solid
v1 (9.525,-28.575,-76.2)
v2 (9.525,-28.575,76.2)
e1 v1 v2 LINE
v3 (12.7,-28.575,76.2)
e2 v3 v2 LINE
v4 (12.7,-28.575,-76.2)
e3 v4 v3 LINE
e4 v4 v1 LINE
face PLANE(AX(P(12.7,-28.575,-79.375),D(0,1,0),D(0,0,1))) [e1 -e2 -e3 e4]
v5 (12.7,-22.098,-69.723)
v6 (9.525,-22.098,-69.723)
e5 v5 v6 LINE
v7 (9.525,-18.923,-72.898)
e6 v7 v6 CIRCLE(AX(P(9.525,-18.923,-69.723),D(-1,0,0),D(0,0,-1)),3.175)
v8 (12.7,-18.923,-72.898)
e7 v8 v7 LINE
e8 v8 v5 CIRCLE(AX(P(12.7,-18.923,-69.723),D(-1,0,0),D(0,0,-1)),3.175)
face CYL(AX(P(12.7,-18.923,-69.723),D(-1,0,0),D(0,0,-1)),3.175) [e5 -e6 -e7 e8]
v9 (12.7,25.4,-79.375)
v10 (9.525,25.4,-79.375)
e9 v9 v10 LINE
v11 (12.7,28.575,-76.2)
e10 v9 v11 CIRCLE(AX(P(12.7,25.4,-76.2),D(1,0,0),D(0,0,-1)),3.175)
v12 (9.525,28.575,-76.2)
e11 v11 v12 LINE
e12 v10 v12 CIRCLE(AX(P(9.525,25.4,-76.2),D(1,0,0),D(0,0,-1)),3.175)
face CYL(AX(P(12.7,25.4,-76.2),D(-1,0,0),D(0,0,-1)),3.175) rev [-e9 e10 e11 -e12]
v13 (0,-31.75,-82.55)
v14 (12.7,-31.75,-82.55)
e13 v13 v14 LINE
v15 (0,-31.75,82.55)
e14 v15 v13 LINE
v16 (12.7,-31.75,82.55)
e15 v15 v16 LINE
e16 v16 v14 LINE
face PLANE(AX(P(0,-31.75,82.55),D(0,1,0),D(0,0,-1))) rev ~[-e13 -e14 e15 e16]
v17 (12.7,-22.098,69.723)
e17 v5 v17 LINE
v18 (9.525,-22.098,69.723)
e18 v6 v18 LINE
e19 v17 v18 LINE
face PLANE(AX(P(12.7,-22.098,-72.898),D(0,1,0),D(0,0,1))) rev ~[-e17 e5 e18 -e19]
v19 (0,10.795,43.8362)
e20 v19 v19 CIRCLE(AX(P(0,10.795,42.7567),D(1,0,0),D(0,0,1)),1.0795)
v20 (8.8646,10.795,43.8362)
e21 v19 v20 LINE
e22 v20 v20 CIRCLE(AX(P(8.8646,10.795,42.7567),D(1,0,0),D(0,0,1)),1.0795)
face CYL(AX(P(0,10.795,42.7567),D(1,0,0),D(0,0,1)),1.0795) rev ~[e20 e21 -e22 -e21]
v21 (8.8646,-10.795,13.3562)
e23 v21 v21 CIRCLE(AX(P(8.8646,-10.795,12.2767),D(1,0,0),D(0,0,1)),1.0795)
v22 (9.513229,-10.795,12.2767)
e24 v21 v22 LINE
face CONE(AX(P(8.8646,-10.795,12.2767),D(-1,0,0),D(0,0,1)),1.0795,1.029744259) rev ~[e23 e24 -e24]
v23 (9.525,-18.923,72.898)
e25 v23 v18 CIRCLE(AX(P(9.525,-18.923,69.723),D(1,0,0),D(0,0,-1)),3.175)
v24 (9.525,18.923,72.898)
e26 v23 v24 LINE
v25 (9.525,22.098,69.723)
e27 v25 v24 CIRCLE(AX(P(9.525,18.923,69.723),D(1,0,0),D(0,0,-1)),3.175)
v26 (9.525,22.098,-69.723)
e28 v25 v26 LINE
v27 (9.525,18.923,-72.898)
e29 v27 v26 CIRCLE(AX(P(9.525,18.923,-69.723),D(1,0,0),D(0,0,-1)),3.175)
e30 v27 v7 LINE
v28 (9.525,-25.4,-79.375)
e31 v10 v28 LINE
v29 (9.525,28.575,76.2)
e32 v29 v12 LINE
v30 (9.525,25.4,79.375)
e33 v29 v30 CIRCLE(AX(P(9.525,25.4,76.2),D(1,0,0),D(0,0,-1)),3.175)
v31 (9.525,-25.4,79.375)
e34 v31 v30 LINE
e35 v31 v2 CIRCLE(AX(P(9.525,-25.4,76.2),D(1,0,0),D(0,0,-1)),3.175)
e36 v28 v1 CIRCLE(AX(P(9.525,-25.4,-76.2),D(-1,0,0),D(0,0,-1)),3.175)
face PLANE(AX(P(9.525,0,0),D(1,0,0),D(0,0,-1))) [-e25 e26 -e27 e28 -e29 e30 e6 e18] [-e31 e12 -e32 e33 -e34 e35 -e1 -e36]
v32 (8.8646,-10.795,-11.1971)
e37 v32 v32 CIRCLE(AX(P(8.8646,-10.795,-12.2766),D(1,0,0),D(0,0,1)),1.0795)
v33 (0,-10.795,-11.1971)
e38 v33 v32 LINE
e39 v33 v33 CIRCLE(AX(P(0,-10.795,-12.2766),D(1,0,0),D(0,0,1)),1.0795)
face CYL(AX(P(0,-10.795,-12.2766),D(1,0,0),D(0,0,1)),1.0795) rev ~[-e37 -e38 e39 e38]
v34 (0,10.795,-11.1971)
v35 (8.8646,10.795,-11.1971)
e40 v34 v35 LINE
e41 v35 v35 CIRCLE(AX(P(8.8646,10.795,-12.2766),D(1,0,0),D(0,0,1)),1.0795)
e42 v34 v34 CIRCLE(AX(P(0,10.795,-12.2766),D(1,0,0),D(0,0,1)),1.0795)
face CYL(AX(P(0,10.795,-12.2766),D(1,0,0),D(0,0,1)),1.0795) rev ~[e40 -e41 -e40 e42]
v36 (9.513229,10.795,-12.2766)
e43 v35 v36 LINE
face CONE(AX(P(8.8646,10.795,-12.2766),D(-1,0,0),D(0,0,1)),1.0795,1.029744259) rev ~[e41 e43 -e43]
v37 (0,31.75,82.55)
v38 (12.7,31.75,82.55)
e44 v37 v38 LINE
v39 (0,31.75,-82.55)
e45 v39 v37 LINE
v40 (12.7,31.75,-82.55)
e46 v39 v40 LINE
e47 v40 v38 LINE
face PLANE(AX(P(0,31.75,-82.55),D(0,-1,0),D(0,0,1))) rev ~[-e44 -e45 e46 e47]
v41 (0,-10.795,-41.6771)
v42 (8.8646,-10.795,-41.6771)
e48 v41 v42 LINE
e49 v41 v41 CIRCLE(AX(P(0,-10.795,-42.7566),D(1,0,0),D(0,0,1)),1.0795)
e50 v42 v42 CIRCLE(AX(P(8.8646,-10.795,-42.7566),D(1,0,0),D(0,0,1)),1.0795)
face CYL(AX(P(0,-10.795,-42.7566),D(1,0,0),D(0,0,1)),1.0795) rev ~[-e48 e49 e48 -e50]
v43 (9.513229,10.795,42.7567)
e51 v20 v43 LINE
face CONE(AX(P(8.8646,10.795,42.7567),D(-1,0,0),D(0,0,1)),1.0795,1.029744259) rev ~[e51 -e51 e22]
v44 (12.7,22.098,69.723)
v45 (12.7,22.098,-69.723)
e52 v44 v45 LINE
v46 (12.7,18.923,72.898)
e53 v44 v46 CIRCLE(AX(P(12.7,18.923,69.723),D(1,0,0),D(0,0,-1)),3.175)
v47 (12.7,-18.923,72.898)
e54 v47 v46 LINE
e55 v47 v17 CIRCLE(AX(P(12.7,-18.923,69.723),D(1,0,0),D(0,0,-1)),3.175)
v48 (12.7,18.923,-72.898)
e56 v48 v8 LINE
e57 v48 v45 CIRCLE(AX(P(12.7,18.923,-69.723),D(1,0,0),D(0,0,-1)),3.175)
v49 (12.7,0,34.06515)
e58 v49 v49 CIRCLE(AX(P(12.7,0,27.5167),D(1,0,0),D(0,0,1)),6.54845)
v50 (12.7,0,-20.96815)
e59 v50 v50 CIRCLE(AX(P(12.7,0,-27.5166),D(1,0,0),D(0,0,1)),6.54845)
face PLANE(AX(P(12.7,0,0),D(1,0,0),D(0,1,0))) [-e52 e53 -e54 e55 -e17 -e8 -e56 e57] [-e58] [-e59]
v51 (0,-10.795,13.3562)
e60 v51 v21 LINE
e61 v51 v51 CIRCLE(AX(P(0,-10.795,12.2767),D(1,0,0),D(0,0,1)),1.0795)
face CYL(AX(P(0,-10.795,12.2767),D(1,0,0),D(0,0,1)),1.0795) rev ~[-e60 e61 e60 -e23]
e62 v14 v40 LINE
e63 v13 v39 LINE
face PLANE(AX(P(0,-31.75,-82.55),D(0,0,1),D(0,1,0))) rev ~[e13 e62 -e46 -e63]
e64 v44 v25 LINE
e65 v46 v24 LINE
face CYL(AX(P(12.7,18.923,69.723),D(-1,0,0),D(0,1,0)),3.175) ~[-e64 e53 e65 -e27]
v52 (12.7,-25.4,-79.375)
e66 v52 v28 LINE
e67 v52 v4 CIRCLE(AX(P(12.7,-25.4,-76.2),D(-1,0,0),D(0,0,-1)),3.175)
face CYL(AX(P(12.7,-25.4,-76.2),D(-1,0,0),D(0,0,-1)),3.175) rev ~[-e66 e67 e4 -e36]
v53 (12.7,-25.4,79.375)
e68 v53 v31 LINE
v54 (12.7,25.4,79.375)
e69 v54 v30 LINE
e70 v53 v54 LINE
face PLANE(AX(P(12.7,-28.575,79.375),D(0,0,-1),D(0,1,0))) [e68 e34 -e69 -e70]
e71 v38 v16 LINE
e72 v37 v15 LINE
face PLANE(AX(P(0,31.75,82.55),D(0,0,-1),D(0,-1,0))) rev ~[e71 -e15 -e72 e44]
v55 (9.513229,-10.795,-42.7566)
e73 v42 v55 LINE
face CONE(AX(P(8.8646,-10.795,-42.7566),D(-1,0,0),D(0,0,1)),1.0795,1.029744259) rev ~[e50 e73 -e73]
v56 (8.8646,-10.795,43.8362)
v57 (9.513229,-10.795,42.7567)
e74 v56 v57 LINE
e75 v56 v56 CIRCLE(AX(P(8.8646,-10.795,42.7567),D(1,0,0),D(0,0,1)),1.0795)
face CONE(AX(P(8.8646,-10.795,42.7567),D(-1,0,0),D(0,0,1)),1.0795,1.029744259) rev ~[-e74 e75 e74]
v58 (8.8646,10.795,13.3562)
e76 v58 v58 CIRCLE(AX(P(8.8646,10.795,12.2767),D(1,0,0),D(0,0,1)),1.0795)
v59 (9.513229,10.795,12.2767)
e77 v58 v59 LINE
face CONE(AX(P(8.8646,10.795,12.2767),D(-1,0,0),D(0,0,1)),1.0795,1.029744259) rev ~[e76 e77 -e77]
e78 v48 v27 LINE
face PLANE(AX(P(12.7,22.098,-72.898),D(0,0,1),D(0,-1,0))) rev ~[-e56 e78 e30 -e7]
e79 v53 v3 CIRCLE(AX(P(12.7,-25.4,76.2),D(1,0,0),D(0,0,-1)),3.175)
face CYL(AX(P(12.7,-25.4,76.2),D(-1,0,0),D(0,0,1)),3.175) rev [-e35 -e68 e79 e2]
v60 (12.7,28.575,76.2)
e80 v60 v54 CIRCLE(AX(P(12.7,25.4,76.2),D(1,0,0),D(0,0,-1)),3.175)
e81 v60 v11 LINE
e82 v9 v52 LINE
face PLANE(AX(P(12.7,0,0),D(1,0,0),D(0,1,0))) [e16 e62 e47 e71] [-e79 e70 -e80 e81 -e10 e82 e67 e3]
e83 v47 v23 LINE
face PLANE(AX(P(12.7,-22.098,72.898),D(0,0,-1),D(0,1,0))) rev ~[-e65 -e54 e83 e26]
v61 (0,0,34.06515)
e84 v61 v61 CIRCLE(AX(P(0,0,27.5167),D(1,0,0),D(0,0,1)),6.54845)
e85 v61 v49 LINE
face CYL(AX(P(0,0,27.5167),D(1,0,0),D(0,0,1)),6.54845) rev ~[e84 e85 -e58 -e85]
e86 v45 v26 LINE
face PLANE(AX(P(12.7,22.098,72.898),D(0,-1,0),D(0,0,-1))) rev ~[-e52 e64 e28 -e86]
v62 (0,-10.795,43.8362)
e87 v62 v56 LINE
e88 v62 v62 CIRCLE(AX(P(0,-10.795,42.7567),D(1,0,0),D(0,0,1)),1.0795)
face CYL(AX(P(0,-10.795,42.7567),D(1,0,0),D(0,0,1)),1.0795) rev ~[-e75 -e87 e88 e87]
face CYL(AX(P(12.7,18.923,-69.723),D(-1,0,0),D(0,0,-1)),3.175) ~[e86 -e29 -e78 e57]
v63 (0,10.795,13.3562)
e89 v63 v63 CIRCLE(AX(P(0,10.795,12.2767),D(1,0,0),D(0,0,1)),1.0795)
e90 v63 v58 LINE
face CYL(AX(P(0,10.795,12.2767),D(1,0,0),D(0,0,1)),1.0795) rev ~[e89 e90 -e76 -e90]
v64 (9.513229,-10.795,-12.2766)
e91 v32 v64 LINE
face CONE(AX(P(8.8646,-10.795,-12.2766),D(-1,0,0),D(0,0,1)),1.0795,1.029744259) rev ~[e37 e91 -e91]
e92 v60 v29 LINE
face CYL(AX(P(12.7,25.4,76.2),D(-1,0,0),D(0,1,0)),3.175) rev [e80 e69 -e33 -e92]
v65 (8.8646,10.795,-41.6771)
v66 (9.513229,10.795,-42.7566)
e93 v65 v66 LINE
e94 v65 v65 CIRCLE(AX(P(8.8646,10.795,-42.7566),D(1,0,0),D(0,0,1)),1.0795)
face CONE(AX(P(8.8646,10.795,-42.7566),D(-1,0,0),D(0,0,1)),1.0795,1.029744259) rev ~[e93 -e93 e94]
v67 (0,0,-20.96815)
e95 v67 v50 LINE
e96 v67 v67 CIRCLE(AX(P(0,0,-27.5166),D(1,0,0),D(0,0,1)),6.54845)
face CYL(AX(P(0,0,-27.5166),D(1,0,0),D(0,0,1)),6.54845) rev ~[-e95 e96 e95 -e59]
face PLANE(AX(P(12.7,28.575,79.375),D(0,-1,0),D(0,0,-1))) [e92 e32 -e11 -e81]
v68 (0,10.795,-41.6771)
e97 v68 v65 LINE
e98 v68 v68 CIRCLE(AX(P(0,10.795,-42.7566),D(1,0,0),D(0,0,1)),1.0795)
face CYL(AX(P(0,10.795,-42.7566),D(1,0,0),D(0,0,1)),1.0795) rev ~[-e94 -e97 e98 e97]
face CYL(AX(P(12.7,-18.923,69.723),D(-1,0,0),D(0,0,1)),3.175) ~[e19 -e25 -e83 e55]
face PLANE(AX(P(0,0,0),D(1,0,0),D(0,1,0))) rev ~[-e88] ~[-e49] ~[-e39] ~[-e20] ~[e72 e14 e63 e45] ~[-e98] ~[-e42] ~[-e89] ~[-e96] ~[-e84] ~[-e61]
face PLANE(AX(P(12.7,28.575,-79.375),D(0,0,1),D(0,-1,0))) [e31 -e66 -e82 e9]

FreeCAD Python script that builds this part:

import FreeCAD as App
import Part
import Sketcher
Q = App.Units.Quantity


def edges_at(feature, points):
    """Names of the edges that pass closest to the given points."""
    edges = feature.Shape.Edges
    near = lambda p: min(range(len(edges)), key=lambda i: edges[i].distToShape(Part.Vertex(*p))[0])
    return sorted({f"Edge{near(p) + 1}" for p in points})


def add_polygon(sketch, points):
    """Adds a closed chain of lines whose ends are joined by coincident constraints."""
    first, n = sketch.GeometryCount, len(points)
    for a, b in zip(points, points[1:] + points[:1]):
        sketch.addGeometry(Part.LineSegment(App.Vector(*a, 0), App.Vector(*b, 0)), False)
    for i in range(n):
        sketch.addConstraint(Sketcher.Constraint("Coincident", first + i, 2, first + (i + 1) % n, 1))

doc = App.newDocument("Part")
body = doc.addObject("PartDesign::Body", "Body")

# Sketch on YZ plane
sketch1 = body.newObject("Sketcher::SketchObject", "Sketch")
sketch1.AttachmentSupport = (doc.getObject("YZ_Plane"), [""])
sketch1.MapMode = "FlatFace"
add_polygon(sketch1, [(31.75, -82.55), (31.75, 82.55), (-31.75, 82.55), (-31.75, -82.55)])  # lines 0-3
sketch1.addConstraint(Sketcher.Constraint("Vertical", 0))
sketch1.addConstraint(Sketcher.Constraint("Horizontal", 1))
sketch1.addConstraint(Sketcher.Constraint("Vertical", 2))
sketch1.addConstraint(Sketcher.Constraint("Horizontal", 3))
sketch1.addConstraint(Sketcher.Constraint("Symmetric", 0, 2, 2, 2, -1, 1))
sketch1.addConstraint(Sketcher.Constraint("DistanceX", 1, 2, 1, 1, Q("2.5 in")))
sketch1.addConstraint(Sketcher.Constraint("DistanceY", 0, 1, 0, 2, Q("6.5 in")))
pad1 = body.newObject("PartDesign::Pad", "Pad")
pad1.Profile = sketch1
pad1.Length = Q("0.5 in")

# Sketch on YZ plane
sketch2 = body.newObject("Sketcher::SketchObject", "Sketch001")
sketch2.AttachmentSupport = (doc.getObject("YZ_Plane"), [""])
sketch2.MapMode = "FlatFace"
sketch2.AttachmentOffset = App.Placement(App.Vector(0, 0, 0.5 * 25.4), App.Rotation())
add_polygon(sketch2, [(-28.575, 79.375), (-28.575, -79.375), (28.575, -79.375), (28.575, 79.375)])  # lines 0-3
add_polygon(sketch2, [(22.098, -72.898), (-22.098, -72.898), (-22.098, 72.898), (22.098, 72.898)])  # lines 4-7
sketch2.addConstraint(Sketcher.Constraint("Vertical", 0))
sketch2.addConstraint(Sketcher.Constraint("Horizontal", 1))
sketch2.addConstraint(Sketcher.Constraint("Vertical", 2))
sketch2.addConstraint(Sketcher.Constraint("Horizontal", 3))
sketch2.addConstraint(Sketcher.Constraint("Horizontal", 4))
sketch2.addConstraint(Sketcher.Constraint("Vertical", 5))
sketch2.addConstraint(Sketcher.Constraint("Horizontal", 6))
sketch2.addConstraint(Sketcher.Constraint("Vertical", 7))
sketch2.addConstraint(Sketcher.Constraint("Symmetric", 0, 2, 2, 2, -1, 1))
sketch2.addConstraint(Sketcher.Constraint("Symmetric", 4, 2, 6, 2, -1, 1))
sketch2.addConstraint(Sketcher.Constraint("DistanceX", 4, 2, 4, 1, Q("1.74 in")))
sketch2.addConstraint(Sketcher.Constraint("DistanceY", 5, 1, 5, 2, Q("5.74 in")))
sketch2.addConstraint(Sketcher.Constraint("DistanceX", 0, 2, 4, 2, Q("0.255 in")))
sketch2.addConstraint(Sketcher.Constraint("DistanceY", 0, 2, 4, 2, Q("0.255 in")))
pocket1 = body.newObject("PartDesign::Pocket", "Pocket")
pocket1.Profile = sketch2
pocket1.Length = Q("0.125 in")
doc.recompute()

fillet = body.newObject("PartDesign::Fillet", "Fillet")
fillet.Base = (pocket1, edges_at(pocket1, [
    (11.113, -28.575, 79.375),
    (11.113, 28.575, 79.375),
    (11.113, 28.575, -79.375),
    (11.113, -28.575, -79.375),
    (11.113, -22.098, 72.898),
    (11.113, 22.098, 72.898),
    (11.113, 22.098, -72.898),
    (11.113, -22.098, -72.898),
]))
fillet.Radius = Q("0.125 in")

# Sketch on YZ plane
sketch3 = body.newObject("Sketcher::SketchObject", "Sketch002")
sketch3.AttachmentSupport = (doc.getObject("YZ_Plane"), [""])
sketch3.MapMode = "FlatFace"
sketch3.addGeometry(Part.Circle(App.Vector(0, 27.5167, 0), App.Vector(0, 0, 1), 6.54845), False)
sketch3.addConstraint(Sketcher.Constraint("PointOnObject", 0, 3, -2))
sketch3.addConstraint(Sketcher.Constraint("Diameter", 0, Q("0.5156299 in")))
sketch3.addConstraint(Sketcher.Constraint("DistanceY", -1, 1, 0, 3, Q("27.5167 mm")))
doc.recompute()
hole = body.newObject("PartDesign::Hole", "Hole")
hole.Profile = sketch3
hole.ThreadType = "None"
hole.Diameter = Q("0.515626 in")
hole.DepthType = "ThroughAll"
hole.Reversed = True

# Sketch on YZ plane
sketch4 = body.newObject("Sketcher::SketchObject", "Sketch003")
sketch4.AttachmentSupport = (doc.getObject("YZ_Plane"), [""])
sketch4.MapMode = "FlatFace"
sketch4.addGeometry(Part.Circle(App.Vector(-10.795, 42.7567, 0), App.Vector(0, 0, 1), 1.0795), False)
sketch4.addGeometry(Part.Circle(App.Vector(10.795, 42.7567, 0), App.Vector(0, 0, 1), 1.0795), False)
sketch4.addGeometry(Part.Circle(App.Vector(10.795, 12.2767, 0), App.Vector(0, 0, 1), 1.0795), False)
sketch4.addGeometry(Part.Circle(App.Vector(-10.795, 12.2767, 0), App.Vector(0, 0, 1), 1.0795), False)
sketch4.addConstraint(Sketcher.Constraint("Equal", 0, 1))
sketch4.addConstraint(Sketcher.Constraint("Equal", 1, 2))
sketch4.addConstraint(Sketcher.Constraint("Equal", 2, 3))
sketch4.addConstraint(Sketcher.Constraint("Symmetric", 0, 3, 1, 3, -2))
sketch4.addConstraint(Sketcher.Constraint("Symmetric", 2, 3, 3, 3, -2))
sketch4.addConstraint(Sketcher.Constraint("Vertical", 1, 3, 2, 3))
sketch4.addConstraint(Sketcher.Constraint("Diameter", 0, Q("0.085 in")))
sketch4.addConstraint(Sketcher.Constraint("DistanceY", 2, 3, 1, 3, Q("1.2 in")))
sketch4.addConstraint(Sketcher.Constraint("DistanceX", 0, 3, 1, 3, Q("0.85 in")))
sketch4.addConstraint(Sketcher.Constraint("DistanceY", -1, 1, 0, 3, Q("42.7567 mm")))
doc.recompute()
hole2 = body.newObject("PartDesign::Hole", "Hole001")
hole2.Profile = sketch4
hole2.ThreadType = "None"
hole2.Diameter = Q("0.085 in")
hole2.DepthType = "Dimension"
hole2.Depth = Q("0.349 in")
hole2.DrillPoint = "Angled"
hole2.DrillPointAngle = 118
hole2.Reversed = True
doc.recompute()

linearpattern = body.newObject("PartDesign::LinearPattern", "LinearPattern")
linearpattern.Originals = [hole, hole2]
linearpattern.Direction = (doc.getObject("Z_Axis"), [""])
linearpattern.Mode = "offset"
linearpattern.Offset = 55.0333
linearpattern.Occurrences = 2
linearpattern.Reversed = True
body.Tip = linearpattern

doc.recompute()
